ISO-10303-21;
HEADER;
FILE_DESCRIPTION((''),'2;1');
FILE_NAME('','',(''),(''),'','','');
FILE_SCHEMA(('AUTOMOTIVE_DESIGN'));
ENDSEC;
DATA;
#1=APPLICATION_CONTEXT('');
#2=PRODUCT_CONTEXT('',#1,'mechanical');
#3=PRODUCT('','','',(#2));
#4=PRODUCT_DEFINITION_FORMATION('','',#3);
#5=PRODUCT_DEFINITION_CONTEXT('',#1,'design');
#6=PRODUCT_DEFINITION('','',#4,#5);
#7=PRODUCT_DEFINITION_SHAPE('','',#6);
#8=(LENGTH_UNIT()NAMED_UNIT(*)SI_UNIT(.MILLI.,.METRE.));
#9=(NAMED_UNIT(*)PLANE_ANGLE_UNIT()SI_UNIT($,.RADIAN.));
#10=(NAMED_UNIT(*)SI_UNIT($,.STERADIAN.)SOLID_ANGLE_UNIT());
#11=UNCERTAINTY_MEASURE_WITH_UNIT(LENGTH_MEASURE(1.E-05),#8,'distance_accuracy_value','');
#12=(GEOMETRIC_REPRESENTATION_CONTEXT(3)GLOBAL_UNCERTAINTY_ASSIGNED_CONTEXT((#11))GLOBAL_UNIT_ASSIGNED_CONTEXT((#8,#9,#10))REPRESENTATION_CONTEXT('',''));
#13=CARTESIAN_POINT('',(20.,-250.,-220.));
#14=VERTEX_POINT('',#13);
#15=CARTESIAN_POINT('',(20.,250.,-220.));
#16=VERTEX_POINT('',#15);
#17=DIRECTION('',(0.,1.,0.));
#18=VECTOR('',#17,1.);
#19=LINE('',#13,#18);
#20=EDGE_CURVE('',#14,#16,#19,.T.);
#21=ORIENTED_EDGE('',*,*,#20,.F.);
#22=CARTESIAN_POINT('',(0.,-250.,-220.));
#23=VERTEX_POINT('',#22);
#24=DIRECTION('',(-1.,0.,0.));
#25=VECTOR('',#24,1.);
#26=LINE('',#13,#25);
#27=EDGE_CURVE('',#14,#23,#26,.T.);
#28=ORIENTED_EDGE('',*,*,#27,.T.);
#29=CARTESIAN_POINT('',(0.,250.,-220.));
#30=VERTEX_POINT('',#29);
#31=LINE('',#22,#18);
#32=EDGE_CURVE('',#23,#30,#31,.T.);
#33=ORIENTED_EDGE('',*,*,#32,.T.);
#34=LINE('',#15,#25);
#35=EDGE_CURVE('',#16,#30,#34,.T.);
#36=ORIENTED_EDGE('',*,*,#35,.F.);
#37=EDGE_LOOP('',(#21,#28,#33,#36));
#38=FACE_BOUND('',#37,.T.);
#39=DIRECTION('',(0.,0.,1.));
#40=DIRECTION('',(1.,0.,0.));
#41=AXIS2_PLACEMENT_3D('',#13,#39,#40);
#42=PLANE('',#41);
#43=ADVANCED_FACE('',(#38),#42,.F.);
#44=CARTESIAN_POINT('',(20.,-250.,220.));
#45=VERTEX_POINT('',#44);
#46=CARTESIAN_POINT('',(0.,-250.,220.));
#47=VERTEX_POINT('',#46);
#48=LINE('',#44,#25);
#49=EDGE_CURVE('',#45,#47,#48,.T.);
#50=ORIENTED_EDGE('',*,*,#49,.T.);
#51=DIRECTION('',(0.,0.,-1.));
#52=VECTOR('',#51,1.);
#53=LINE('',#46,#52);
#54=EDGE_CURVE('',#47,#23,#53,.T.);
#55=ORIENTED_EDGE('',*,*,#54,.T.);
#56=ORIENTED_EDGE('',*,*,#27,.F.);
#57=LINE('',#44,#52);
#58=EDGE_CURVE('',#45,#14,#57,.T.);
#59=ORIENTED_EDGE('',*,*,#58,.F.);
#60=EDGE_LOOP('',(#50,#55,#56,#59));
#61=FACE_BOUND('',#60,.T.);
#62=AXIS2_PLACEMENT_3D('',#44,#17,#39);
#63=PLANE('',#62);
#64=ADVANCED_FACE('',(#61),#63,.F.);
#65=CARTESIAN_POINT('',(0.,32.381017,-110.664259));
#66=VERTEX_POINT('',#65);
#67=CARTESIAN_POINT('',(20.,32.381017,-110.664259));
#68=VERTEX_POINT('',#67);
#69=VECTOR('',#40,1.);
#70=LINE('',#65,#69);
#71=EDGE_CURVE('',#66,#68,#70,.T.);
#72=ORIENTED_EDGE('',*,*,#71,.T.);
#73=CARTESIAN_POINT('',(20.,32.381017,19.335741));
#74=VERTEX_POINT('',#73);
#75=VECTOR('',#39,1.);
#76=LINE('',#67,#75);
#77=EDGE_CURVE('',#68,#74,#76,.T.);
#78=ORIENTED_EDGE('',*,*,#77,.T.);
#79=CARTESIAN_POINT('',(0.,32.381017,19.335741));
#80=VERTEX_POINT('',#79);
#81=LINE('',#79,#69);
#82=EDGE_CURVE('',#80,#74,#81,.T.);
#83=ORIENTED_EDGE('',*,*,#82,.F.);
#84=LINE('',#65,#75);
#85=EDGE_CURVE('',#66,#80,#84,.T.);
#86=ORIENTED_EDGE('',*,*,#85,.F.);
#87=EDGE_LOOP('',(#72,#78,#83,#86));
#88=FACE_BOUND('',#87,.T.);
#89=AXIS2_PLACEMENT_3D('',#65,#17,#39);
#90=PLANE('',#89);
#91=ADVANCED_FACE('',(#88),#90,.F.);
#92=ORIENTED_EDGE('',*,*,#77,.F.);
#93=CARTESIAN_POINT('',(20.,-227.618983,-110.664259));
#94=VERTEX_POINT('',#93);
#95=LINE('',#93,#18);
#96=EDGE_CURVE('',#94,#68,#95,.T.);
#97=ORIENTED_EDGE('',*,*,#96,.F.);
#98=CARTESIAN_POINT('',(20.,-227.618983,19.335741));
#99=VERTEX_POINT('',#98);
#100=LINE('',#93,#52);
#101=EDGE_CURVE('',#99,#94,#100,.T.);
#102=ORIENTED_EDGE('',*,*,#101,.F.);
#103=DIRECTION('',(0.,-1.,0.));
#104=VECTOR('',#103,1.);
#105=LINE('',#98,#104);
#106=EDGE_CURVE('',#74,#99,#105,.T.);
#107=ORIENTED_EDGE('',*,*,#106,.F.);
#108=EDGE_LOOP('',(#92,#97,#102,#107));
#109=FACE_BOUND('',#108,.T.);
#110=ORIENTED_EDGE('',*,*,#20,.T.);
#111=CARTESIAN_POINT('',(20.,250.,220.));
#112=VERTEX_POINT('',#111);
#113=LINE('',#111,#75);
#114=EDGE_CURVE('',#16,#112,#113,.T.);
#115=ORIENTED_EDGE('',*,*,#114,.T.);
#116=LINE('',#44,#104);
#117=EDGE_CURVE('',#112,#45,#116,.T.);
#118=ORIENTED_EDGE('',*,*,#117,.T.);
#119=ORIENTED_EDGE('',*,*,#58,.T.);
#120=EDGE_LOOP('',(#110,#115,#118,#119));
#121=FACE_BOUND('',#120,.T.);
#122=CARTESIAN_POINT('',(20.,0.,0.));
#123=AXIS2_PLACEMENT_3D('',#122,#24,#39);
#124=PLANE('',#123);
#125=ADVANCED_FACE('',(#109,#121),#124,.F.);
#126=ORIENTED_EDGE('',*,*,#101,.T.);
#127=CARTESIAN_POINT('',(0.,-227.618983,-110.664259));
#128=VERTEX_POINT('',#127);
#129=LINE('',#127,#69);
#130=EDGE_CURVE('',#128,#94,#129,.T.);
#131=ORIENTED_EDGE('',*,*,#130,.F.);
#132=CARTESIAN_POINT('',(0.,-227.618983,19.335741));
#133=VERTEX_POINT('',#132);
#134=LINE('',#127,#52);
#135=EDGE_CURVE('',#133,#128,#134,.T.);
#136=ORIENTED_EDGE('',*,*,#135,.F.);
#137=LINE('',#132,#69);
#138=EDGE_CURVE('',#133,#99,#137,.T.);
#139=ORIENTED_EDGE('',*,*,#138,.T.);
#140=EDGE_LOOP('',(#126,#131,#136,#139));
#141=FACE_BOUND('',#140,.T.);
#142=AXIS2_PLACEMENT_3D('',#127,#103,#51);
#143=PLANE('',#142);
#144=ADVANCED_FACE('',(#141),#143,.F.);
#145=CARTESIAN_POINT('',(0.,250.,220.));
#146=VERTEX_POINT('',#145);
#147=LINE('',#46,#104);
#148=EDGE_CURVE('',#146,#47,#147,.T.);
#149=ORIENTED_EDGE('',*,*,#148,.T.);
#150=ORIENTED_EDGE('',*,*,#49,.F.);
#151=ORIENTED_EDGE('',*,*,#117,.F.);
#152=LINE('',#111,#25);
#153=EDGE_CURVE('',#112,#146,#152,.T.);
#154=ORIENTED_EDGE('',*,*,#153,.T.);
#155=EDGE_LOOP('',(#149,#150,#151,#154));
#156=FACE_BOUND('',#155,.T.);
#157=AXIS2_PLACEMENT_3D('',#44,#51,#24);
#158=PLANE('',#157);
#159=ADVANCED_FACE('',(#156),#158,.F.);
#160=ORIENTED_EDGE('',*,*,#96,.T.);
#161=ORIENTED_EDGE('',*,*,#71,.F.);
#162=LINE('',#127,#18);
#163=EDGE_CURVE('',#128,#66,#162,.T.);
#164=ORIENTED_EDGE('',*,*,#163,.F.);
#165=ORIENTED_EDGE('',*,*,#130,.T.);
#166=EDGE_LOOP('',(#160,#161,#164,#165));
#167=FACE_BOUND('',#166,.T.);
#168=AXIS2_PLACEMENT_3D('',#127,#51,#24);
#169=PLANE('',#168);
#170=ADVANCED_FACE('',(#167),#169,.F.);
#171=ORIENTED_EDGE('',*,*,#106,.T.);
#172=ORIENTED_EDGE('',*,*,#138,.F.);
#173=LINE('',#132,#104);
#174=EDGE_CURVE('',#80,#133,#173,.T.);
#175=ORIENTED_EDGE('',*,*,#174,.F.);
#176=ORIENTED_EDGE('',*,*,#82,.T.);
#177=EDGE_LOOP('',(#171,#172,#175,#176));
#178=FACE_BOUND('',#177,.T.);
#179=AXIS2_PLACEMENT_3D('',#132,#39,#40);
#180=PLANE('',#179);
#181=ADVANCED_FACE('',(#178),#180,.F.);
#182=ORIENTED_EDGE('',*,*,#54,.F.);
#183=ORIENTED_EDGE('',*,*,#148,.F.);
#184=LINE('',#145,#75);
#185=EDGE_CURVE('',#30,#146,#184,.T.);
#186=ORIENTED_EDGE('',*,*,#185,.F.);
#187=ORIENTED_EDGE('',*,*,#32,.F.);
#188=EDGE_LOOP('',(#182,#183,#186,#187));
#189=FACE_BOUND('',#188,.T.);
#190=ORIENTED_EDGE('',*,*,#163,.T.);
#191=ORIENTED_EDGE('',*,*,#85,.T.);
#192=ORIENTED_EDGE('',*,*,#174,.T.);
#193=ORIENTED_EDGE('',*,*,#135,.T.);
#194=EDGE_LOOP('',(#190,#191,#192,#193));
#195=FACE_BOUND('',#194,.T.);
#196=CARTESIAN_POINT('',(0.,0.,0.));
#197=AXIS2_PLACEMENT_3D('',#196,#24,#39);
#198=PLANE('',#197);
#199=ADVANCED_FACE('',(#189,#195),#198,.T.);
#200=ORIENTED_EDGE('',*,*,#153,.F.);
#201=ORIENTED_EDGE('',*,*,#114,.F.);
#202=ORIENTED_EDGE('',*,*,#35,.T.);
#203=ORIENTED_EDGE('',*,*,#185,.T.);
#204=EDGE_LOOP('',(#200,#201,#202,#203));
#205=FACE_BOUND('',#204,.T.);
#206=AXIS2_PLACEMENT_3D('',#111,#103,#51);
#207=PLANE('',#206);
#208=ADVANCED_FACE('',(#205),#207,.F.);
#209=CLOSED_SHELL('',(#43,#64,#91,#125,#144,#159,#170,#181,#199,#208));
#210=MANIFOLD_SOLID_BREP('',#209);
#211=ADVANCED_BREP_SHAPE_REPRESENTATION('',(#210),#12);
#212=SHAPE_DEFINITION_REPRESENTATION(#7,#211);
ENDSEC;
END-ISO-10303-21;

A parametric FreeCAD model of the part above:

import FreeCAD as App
import Part
import Sketcher
Q = App.Units.Quantity

doc = App.newDocument("Part")
body = doc.addObject("PartDesign::Body", "Body")

sketch1 = doc.addObject("Sketcher::SketchObject", "Sketch")
body.addObject(sketch1)
sketch1.AttachmentSupport = (doc.YZ_Plane, [""])
sketch1.MapMode = "FlatFace"
sketch1.addGeometry([
    Part.LineSegment(App.Vector(250, 220, 0), App.Vector(-250, 220, 0)),
    Part.LineSegment(App.Vector(-250, 220, 0), App.Vector(-250, -220, 0)),
    Part.LineSegment(App.Vector(-250, -220, 0), App.Vector(250, -220, 0)),
    Part.LineSegment(App.Vector(250, -220, 0), App.Vector(250, 220, 0)),
], False)
sketch1.addConstraint([
    Sketcher.Constraint("Coincident", 0, 2, 1, 1),
    Sketcher.Constraint("Coincident", 1, 2, 2, 1),
    Sketcher.Constraint("Coincident", 2, 2, 3, 1),
    Sketcher.Constraint("Coincident", 3, 2, 0, 1),
    Sketcher.Constraint("Horizontal", 0),
    Sketcher.Constraint("Vertical", 1),
    Sketcher.Constraint("Horizontal", 2),
    Sketcher.Constraint("Vertical", 3),
    Sketcher.Constraint("Symmetric", 0, 2, 2, 2, -1, 1),
    Sketcher.Constraint("DistanceX", 0, 2, 0, 1, Q("500 mm")),
    Sketcher.Constraint("DistanceY", 1, 2, 1, 1, Q("440 mm")),
])
pad1 = doc.addObject("PartDesign::Pad", "Pad")
body.addObject(pad1)
pad1.Profile = sketch1
pad1.Length = 20

sketch2 = doc.addObject("Sketcher::SketchObject", "Sketch001")
body.addObject(sketch2)
sketch2.AttachmentSupport = (doc.YZ_Plane, [""])
sketch2.MapMode = "FlatFace"
sketch2.AttachmentOffset = App.Placement(App.Vector(0, 0, 20), App.Rotation())
sketch2.addGeometry([
    Part.LineSegment(App.Vector(32, 19, 0), App.Vector(-228, 19, 0)),
    Part.LineSegment(App.Vector(-228, 19, 0), App.Vector(-228, -111, 0)),
    Part.LineSegment(App.Vector(-228, -111, 0), App.Vector(32, -111, 0)),
    Part.LineSegment(App.Vector(32, -111, 0), App.Vector(32, 19, 0)),
], False)
sketch2.addConstraint([
    Sketcher.Constraint("Coincident", 0, 2, 1, 1),
    Sketcher.Constraint("Coincident", 1, 2, 2, 1),
    Sketcher.Constraint("Coincident", 2, 2, 3, 1),
    Sketcher.Constraint("Coincident", 3, 2, 0, 1),
    Sketcher.Constraint("Horizontal", 0),
    Sketcher.Constraint("Vertical", 1),
    Sketcher.Constraint("Horizontal", 2),
    Sketcher.Constraint("Vertical", 3),
    Sketcher.Constraint("DistanceX", 0, 2, 0, 1, Q("260 mm")),
    Sketcher.Constraint("DistanceY", 1, 2, 1, 1, Q("130 mm")),
    Sketcher.Constraint("DistanceY", -1, 1, 0, 2, Q("19.335741 mm")),
    Sketcher.Constraint("DistanceX", 0, 2, -1, 1, Q("227.618983 mm")),
])
pocket1 = doc.addObject("PartDesign::Pocket", "Pocket")
body.addObject(pocket1)
pocket1.Profile = sketch2
pocket1.Length = 20

doc.recompute()
